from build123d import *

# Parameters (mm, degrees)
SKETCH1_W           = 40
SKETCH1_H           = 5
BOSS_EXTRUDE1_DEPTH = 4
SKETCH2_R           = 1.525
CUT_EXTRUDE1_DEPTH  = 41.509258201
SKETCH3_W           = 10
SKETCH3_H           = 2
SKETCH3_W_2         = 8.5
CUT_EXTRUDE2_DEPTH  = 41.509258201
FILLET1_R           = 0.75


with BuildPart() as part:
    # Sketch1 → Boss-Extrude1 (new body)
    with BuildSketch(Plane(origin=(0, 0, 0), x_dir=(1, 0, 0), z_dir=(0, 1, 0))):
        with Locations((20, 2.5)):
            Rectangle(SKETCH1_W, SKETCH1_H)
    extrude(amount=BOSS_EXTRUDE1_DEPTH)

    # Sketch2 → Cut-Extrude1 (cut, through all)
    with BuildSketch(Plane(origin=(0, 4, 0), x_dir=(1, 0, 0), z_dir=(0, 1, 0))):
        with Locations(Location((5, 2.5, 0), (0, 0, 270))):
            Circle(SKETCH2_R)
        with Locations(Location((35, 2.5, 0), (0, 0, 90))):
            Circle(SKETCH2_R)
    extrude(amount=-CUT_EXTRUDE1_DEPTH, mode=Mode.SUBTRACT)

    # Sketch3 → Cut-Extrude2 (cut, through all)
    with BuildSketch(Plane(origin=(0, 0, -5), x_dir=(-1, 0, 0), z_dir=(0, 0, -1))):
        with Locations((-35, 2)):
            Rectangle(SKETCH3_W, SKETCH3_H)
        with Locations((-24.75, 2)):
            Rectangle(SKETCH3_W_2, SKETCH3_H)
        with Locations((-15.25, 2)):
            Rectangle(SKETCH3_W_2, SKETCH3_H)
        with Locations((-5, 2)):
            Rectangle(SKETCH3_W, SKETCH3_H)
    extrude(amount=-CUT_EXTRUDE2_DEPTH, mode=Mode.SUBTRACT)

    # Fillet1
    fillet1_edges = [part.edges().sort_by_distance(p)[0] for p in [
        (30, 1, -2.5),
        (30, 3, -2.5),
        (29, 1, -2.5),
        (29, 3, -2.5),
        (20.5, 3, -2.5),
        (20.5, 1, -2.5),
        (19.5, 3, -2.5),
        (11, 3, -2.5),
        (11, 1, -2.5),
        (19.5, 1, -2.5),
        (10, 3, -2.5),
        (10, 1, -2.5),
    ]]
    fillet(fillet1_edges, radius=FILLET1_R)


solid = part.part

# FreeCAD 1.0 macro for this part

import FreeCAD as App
import Part
import Sketcher
from FreeCAD import Vector


def edges_at(feature, points):
    """Names of the edges that pass closest to the given points."""
    edges = feature.Shape.Edges
    near = lambda p: min(range(len(edges)), key=lambda i: edges[i].distToShape(Part.Vertex(*p))[0])
    return sorted({f"Edge{near(p) + 1}" for p in points})

doc = App.newDocument("Part")
body = doc.addObject("PartDesign::Body", "Body")

# Sketch on XZ plane
sketch1 = doc.addObject("Sketcher::SketchObject", "Sketch")
body.addObject(sketch1)
sketch1.AttachmentSupport = (doc.XZ_Plane, [""])
sketch1.MapMode = "FlatFace"
sketch1.addGeometry([
    Part.LineSegment(Vector(0, -5, 0), Vector(0, 0, 0)),
    Part.LineSegment(Vector(0, 0, 0), Vector(40, 0, 0)),
    Part.LineSegment(Vector(40, 0, 0), Vector(40, -5, 0)),
    Part.LineSegment(Vector(40, -5, 0), Vector(0, -5, 0)),
], False)
sketch1.addConstraint([
    Sketcher.Constraint("Coincident", 0, 2, 1, 1),
    Sketcher.Constraint("Coincident", 1, 2, 2, 1),
    Sketcher.Constraint("Coincident", 2, 2, 3, 1),
    Sketcher.Constraint("Coincident", 3, 2, 0, 1),
    Sketcher.Constraint("Vertical", 0),
    Sketcher.Constraint("Horizontal", 1),
    Sketcher.Constraint("Vertical", 2),
    Sketcher.Constraint("Horizontal", 3),
    Sketcher.Constraint("Coincident", 0, 2, -1, 1),
    Sketcher.Constraint("DistanceX", 1, 1, 1, 2, 40.0),
    Sketcher.Constraint("DistanceY", 0, 1, 0, 2, 5.0),
])
pad1 = doc.addObject("PartDesign::Pad", "Pad")
body.addObject(pad1)
pad1.Profile = sketch1
pad1.Length = 4
pad1.Reversed = True

# Sketch on XZ plane
sketch2 = doc.addObject("Sketcher::SketchObject", "Sketch001")
body.addObject(sketch2)
sketch2.AttachmentSupport = (doc.XZ_Plane, [""])
sketch2.MapMode = "FlatFace"
sketch2.AttachmentOffset = App.Placement(Vector(0, 0, -4), App.Rotation())
sketch2.addGeometry([
    Part.Circle(Vector(5, -2.5, 0), Vector(0, 0, 1), 1.525),
    Part.Circle(Vector(35, -2.5, 0), Vector(0, 0, 1), 1.525),
], False)
sketch2.addConstraint([
    Sketcher.Constraint("Equal", 0, 1),
    Sketcher.Constraint("Horizontal", 0, 3, 1, 3),
    Sketcher.Constraint("Diameter", 0, 3.05),
    Sketcher.Constraint("DistanceX", -1, 1, 0, 3, 5.0),
    Sketcher.Constraint("DistanceX", -1, 1, 1, 3, 35.0),
    Sketcher.Constraint("DistanceY", 0, 3, -1, 1, 2.5),
])
pocket1 = doc.addObject("PartDesign::Pocket", "Pocket")
body.addObject(pocket1)
pocket1.Profile = sketch2
pocket1.Type = "ThroughAll"
pocket1.Reversed = True

# Sketch on XY plane
sketch3 = doc.addObject("Sketcher::SketchObject", "Sketch002")
body.addObject(sketch3)
sketch3.AttachmentSupport = (doc.XY_Plane, [""])
sketch3.MapMode = "FlatFace"
sketch3.AttachmentOffset = App.Placement(Vector(0, 0, -5), App.Rotation())
sketch3.addGeometry([
    Part.LineSegment(Vector(40, 3, 0), Vector(40, 1, 0)),  # 0
    Part.LineSegment(Vector(40, 1, 0), Vector(30, 1, 0)),  # 1
    Part.LineSegment(Vector(30, 1, 0), Vector(30, 3, 0)),  # 2
    Part.LineSegment(Vector(30, 3, 0), Vector(40, 3, 0)),  # 3
    Part.LineSegment(Vector(29, 3, 0), Vector(29, 1, 0)),  # 4
    Part.LineSegment(Vector(29, 1, 0), Vector(20.5, 1, 0)),  # 5
    Part.LineSegment(Vector(20.5, 1, 0), Vector(20.5, 3, 0)),  # 6
    Part.LineSegment(Vector(20.5, 3, 0), Vector(29, 3, 0)),  # 7
    Part.LineSegment(Vector(19.5, 3, 0), Vector(19.5, 1, 0)),  # 8
    Part.LineSegment(Vector(19.5, 1, 0), Vector(11, 1, 0)),  # 9
    Part.LineSegment(Vector(11, 1, 0), Vector(11, 3, 0)),  # 10
    Part.LineSegment(Vector(11, 3, 0), Vector(19.5, 3, 0)),  # 11
    Part.LineSegment(Vector(10, 3, 0), Vector(10, 1, 0)),  # 12
    Part.LineSegment(Vector(10, 1, 0), Vector(0, 1, 0)),  # 13
    Part.LineSegment(Vector(0, 1, 0), Vector(0, 3, 0)),  # 14
    Part.LineSegment(Vector(0, 3, 0), Vector(10, 3, 0)),  # 15
], False)
sketch3.addConstraint([
    Sketcher.Constraint("Coincident", 0, 2, 1, 1),
    Sketcher.Constraint("Coincident", 1, 2, 2, 1),
    Sketcher.Constraint("Coincident", 2, 2, 3, 1),
    Sketcher.Constraint("Coincident", 3, 2, 0, 1),
    Sketcher.Constraint("Coincident", 4, 2, 5, 1),
    Sketcher.Constraint("Coincident", 5, 2, 6, 1),
    Sketcher.Constraint("Coincident", 6, 2, 7, 1),
    Sketcher.Constraint("Coincident", 7, 2, 4, 1),
    Sketcher.Constraint("Coincident", 8, 2, 9, 1),
    Sketcher.Constraint("Coincident", 9, 2, 10, 1),
    Sketcher.Constraint("Coincident", 10, 2, 11, 1),
    Sketcher.Constraint("Coincident", 11, 2, 8, 1),
    Sketcher.Constraint("Coincident", 12, 2, 13, 1),
    Sketcher.Constraint("Coincident", 13, 2, 14, 1),
    Sketcher.Constraint("Coincident", 14, 2, 15, 1),
    Sketcher.Constraint("Coincident", 15, 2, 12, 1),
    Sketcher.Constraint("Vertical", 0),
    Sketcher.Constraint("Horizontal", 1),
    Sketcher.Constraint("Vertical", 2),
    Sketcher.Constraint("Horizontal", 3),
    Sketcher.Constraint("Vertical", 4),
    Sketcher.Constraint("Horizontal", 5),
    Sketcher.Constraint("Vertical", 6),
    Sketcher.Constraint("Horizontal", 7),
    Sketcher.Constraint("Vertical", 8),
    Sketcher.Constraint("Horizontal", 9),
    Sketcher.Constraint("Vertical", 10),
    Sketcher.Constraint("Horizontal", 11),
    Sketcher.Constraint("Vertical", 12),
    Sketcher.Constraint("Horizontal", 13),
    Sketcher.Constraint("Vertical", 14),
    Sketcher.Constraint("Horizontal", 15),
    Sketcher.Constraint("PointOnObject", 13, 2, -2),
    Sketcher.Constraint("Horizontal", 1, 2, 4, 2),
    Sketcher.Constraint("Horizontal", 3, 2, 6, 2),
    Sketcher.Constraint("Horizontal", 5, 2, 8, 2),
    Sketcher.Constraint("Horizontal", 7, 2, 10, 2),
    Sketcher.Constraint("Horizontal", 9, 2, 12, 2),
    Sketcher.Constraint("Horizontal", 11, 2, 14, 2),
    Sketcher.Constraint("Equal", 7, 9),
    Sketcher.Constraint("Equal", 3, 13),
    Sketcher.Constraint("DistanceX", 1, 2, 1, 1, 10.0),
    Sketcher.Constraint("DistanceY", 0, 2, 0, 1, 2.0),
    Sketcher.Constraint("DistanceX", 5, 2, 5, 1, 8.5),
    Sketcher.Constraint("DistanceX", -1, 1, 0, 2, 40.0),
    Sketcher.Constraint("DistanceY", -1, 1, 0, 2, 1.0),
    Sketcher.Constraint("DistanceX", -1, 1, 4, 2, 29.0),
    Sketcher.Constraint("DistanceX", -1, 1, 9, 2, 11.0),
])
pocket2 = doc.addObject("PartDesign::Pocket", "Pocket001")
body.addObject(pocket2)
pocket2.Profile = sketch3
pocket2.Type = "ThroughAll"
pocket2.Reversed = True
doc.recompute()

fillet = doc.addObject("PartDesign::Fillet", "Fillet")
body.addObject(fillet)
fillet.Base = (pocket2, edges_at(pocket2, [
    (30, 1, -2.5),
    (30, 3, -2.5),
    (29, 1, -2.5),
    (29, 3, -2.5),
    (20.5, 3, -2.5),
    (20.5, 1, -2.5),
    (19.5, 3, -2.5),
    (11, 3, -2.5),
    (11, 1, -2.5),
    (19.5, 1, -2.5),
    (10, 3, -2.5),
    (10, 1, -2.5),
]))
fillet.Radius = 0.75

doc.recompute()
